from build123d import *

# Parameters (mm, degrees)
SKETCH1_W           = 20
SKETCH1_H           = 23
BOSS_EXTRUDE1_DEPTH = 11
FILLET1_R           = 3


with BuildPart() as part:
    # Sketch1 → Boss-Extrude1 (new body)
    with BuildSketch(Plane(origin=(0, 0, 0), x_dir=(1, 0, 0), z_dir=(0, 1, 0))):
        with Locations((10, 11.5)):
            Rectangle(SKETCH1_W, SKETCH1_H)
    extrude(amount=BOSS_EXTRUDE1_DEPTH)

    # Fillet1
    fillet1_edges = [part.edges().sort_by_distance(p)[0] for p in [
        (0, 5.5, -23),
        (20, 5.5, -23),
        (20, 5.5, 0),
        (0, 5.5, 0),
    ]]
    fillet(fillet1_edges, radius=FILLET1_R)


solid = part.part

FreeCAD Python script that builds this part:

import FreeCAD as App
import Part
import Sketcher

V = App.Vector


def edges_at(feature, points):
    """Names of the edges that pass closest to the given points."""
    edges = feature.Shape.Edges
    near = lambda p: min(range(len(edges)), key=lambda i: edges[i].distToShape(Part.Vertex(*p))[0])
    return sorted({f"Edge{near(p) + 1}" for p in points})


def add_polygon(sketch, points):
    """Adds a closed chain of lines whose ends are joined by coincident constraints."""
    first, n = sketch.GeometryCount, len(points)
    for a, b in zip(points, points[1:] + points[:1]):
        sketch.addGeometry(Part.LineSegment(App.Vector(*a, 0), App.Vector(*b, 0)), False)
    for i in range(n):
        sketch.addConstraint(Sketcher.Constraint("Coincident", first + i, 2, first + (i + 1) % n, 1))

doc = App.newDocument("Part")
params = doc.addObject("Spreadsheet::Sheet", "Params")
for row, (alias, value) in enumerate([
    ("sketch1_width", "20 mm"),
    ("sketch1_height", "23 mm"),
    ("pad1_length", "11 mm"),
    ("fillet_radius", "3 mm"),
], start=1):
    params.set(f"A{row}", alias)
    params.set(f"B{row}", "=" + value)
    params.setAlias(f"B{row}", alias)

body = doc.addObject("PartDesign::Body", "Body")

sketch1 = body.newObject("Sketcher::SketchObject", "Sketch")
sketch1.AttachmentSupport = (doc.getObject("XZ_Plane"), [""])
sketch1.MapMode = "FlatFace"
add_polygon(sketch1, [(0, -23), (0, 0), (20, 0), (20, -23)])
sketch1.addConstraint(Sketcher.Constraint("Vertical", 0))
sketch1.addConstraint(Sketcher.Constraint("Horizontal", 1))
sketch1.addConstraint(Sketcher.Constraint("Vertical", 2))
sketch1.addConstraint(Sketcher.Constraint("Horizontal", 3))
sketch1.addConstraint(Sketcher.Constraint("Coincident", 0, 2, -1, 1))
sketch1.addConstraint(Sketcher.Constraint("DistanceX", 1, 1, 1, 2, 20.0))
sketch1.addConstraint(Sketcher.Constraint("DistanceY", 0, 1, 0, 2, 23.0))
sketch1.setExpression("Constraints[9]", "Params.sketch1_width")
sketch1.setExpression("Constraints[10]", "Params.sketch1_height")
pad1 = body.newObject("PartDesign::Pad", "Pad")
pad1.Profile = sketch1
pad1.setExpression("Length", "Params.pad1_length")
pad1.Reversed = True
doc.recompute()

fillet = body.newObject("PartDesign::Fillet", "Fillet")
fillet.Base = (pad1, edges_at(pad1, [
    (0, 5.5, -23),
    (20, 5.5, -23),
    (20, 5.5, 0),
    (0, 5.5, 0),
]))
fillet.setExpression("Radius", "Params.fillet_radius")

doc.recompute()
